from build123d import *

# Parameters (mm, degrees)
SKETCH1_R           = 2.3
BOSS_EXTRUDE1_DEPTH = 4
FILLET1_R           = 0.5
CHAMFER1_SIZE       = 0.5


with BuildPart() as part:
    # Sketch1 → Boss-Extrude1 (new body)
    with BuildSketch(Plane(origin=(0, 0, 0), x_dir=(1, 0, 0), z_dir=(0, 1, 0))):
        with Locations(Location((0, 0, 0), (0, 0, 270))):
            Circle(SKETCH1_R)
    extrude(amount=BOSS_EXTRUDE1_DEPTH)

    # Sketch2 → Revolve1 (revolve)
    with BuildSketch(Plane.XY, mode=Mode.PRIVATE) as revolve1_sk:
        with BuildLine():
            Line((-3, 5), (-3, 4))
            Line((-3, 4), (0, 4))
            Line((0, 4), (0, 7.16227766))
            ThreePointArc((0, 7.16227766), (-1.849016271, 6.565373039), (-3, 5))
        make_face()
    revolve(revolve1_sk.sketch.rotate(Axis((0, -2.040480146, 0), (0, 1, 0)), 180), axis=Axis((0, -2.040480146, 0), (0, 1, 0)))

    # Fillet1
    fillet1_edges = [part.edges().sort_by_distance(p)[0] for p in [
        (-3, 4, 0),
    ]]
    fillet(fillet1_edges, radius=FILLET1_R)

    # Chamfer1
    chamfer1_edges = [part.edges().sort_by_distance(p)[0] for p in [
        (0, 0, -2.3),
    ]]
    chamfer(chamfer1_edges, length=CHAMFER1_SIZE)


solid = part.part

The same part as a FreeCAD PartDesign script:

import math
import FreeCAD as App
import Part
import Sketcher
from FreeCAD import Vector


def edges_at(feature, points):
    """Names of the edges that pass closest to the given points."""
    edges = feature.Shape.Edges
    near = lambda p: min(range(len(edges)), key=lambda i: edges[i].distToShape(Part.Vertex(*p))[0])
    return sorted({f"Edge{near(p) + 1}" for p in points})

doc = App.newDocument("Part")
params = doc.addObject("Spreadsheet::Sheet", "Params")
for row, (alias, value) in enumerate([
    ("sketch1_diameter", "4.6 mm"),
    ("pad1_length", "4 mm"),
    ("sketch2_width", "3 mm"),
    ("sketch2_height", "1 mm"),
    ("revolution_angle", "360 deg"),
    ("fillet_radius", "0.5 mm"),
    ("chamfer_size", "0.5 mm"),
], start=1):
    params.set(f"A{row}", alias)
    params.set(f"B{row}", "=" + value)
    params.setAlias(f"B{row}", alias)

body = doc.addObject("PartDesign::Body", "Body")

sketch1 = body.newObject("Sketcher::SketchObject", "Sketch")
sketch1.AttachmentSupport = (doc.getObject("XZ_Plane"), [""])
sketch1.MapMode = "FlatFace"
sketch1.addGeometry(Part.Circle(Vector(0, 0, 0), Vector(0, 0, 1), 2.3), False)
sketch1.addConstraint([
    Sketcher.Constraint("Coincident", 0, 3, -1, 1),
    Sketcher.Constraint("Diameter", 0, 4.6),
])
sketch1.setExpression("Constraints[1]", "Params.sketch1_diameter")
pad1 = body.newObject("PartDesign::Pad", "Pad")
pad1.Profile = sketch1
pad1.setExpression("Length", "Params.pad1_length")
pad1.Reversed = True

sketch2 = body.newObject("Sketcher::SketchObject", "Sketch001")
sketch2.AttachmentSupport = (doc.getObject("XY_Plane"), [""])
sketch2.MapMode = "FlatFace"
sketch2.addGeometry([
    Part.LineSegment(Vector(-3, 5, 0), Vector(-3, 4, 0)),
    Part.LineSegment(Vector(-3, 4, 0), Vector(0, 4, 0)),
    Part.LineSegment(Vector(0, 4, 0), Vector(0, 7.2, 0)),
    Part.ArcOfCircle(Part.Circle(Vector(0, 4, 0), Vector(0, 0, 1), 3.2), math.radians(90), math.radians(162)),
], False)
sketch2.addConstraint([
    Sketcher.Constraint("Coincident", 0, 2, 1, 1),
    Sketcher.Constraint("Coincident", 1, 2, 2, 1),
    Sketcher.Constraint("Coincident", 2, 2, 3, 1),
    Sketcher.Constraint("Coincident", 3, 2, 0, 1),
    Sketcher.Constraint("Vertical", 0),
    Sketcher.Constraint("Horizontal", 1),
    Sketcher.Constraint("Vertical", 2),
    Sketcher.Constraint("Coincident", 1, 2, 3, 3),
    Sketcher.Constraint("PointOnObject", 3, 3, -2),
    Sketcher.Constraint("DistanceX", 1, 1, 1, 2, 3.0),
    Sketcher.Constraint("DistanceY", 0, 2, 0, 1, 1.0),
    Sketcher.Constraint("DistanceY", -1, 1, 3, 3, 4.0),
])
sketch2.setExpression("Constraints[9]", "Params.sketch2_width")
sketch2.setExpression("Constraints[10]", "Params.sketch2_height")
revolution = body.newObject("PartDesign::Revolution", "Revolution")
revolution.Profile = sketch2
revolution.ReferenceAxis = (sketch2, ["V_Axis"])
revolution.setExpression("Angle", "Params.revolution_angle")
doc.recompute()

fillet = body.newObject("PartDesign::Fillet", "Fillet")
fillet.Base = (revolution, edges_at(revolution, [(-3, 4, 0)]))
fillet.setExpression("Radius", "Params.fillet_radius")
doc.recompute()

chamfer = body.newObject("PartDesign::Chamfer", "Chamfer")
chamfer.Base = (fillet, edges_at(fillet, [(0, 0, -2.3)]))
chamfer.setExpression("Size", "Params.chamfer_size")

doc.recompute()
